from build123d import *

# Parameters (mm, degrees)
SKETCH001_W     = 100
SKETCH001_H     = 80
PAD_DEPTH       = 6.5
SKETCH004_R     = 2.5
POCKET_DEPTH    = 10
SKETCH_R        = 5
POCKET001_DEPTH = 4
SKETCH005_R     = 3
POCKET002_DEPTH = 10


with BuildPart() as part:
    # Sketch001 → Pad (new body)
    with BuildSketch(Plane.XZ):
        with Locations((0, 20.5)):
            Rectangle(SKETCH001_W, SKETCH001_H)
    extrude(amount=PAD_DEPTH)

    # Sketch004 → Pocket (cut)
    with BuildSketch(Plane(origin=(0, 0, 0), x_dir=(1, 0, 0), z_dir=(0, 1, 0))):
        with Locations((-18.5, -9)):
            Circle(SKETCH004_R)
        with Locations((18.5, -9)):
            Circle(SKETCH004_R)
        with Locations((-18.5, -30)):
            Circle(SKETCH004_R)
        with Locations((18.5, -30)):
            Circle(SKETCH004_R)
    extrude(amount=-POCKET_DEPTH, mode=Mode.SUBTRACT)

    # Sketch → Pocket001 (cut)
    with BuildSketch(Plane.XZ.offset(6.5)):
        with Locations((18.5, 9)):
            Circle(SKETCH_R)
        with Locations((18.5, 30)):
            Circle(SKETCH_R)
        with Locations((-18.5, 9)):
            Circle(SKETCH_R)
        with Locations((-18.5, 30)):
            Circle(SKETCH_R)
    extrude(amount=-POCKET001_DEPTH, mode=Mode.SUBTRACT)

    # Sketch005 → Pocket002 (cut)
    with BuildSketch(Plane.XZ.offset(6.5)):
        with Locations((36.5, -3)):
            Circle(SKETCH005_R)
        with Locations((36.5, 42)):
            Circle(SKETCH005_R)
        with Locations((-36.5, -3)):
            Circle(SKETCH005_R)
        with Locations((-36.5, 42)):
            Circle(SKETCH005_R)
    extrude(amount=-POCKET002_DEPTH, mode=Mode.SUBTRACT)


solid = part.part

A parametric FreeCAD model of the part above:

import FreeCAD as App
import Part
import Sketcher

V = App.Vector

doc = App.newDocument("Part")
body = doc.addObject("PartDesign::Body", "Body")

sketch1 = body.newObject("Sketcher::SketchObject", "Sketch")
sketch1.AttachmentSupport = (doc.getObject("XZ_Plane"), [""])
sketch1.MapMode = "FlatFace"
sketch1.addGeometry([
    Part.LineSegment(V(-50, 60, 0), V(-50, -20, 0)),
    Part.LineSegment(V(-50, -20, 0), V(50, -20, 0)),
    Part.LineSegment(V(50, -20, 0), V(50, 60, 0)),
    Part.LineSegment(V(50, 60, 0), V(-50, 60, 0)),
], False)
sketch1.addConstraint([
    Sketcher.Constraint("Coincident", 0, 2, 1, 1),
    Sketcher.Constraint("Coincident", 1, 2, 2, 1),
    Sketcher.Constraint("Coincident", 2, 2, 3, 1),
    Sketcher.Constraint("Coincident", 3, 2, 0, 1),
    Sketcher.Constraint("Vertical", 0),
    Sketcher.Constraint("Horizontal", 1),
    Sketcher.Constraint("Vertical", 2),
    Sketcher.Constraint("Horizontal", 3),
    Sketcher.Constraint("DistanceX", 1, 1, 1, 2, 100.0),
    Sketcher.Constraint("DistanceY", 0, 2, 0, 1, 80.0),
    Sketcher.Constraint("DistanceX", 0, 2, -1, 1, 50.0),
    Sketcher.Constraint("DistanceY", 0, 2, -1, 1, 19.5),
])
pad1 = body.newObject("PartDesign::Pad", "Pad")
pad1.Profile = sketch1
pad1.Length = 6.5

sketch2 = body.newObject("Sketcher::SketchObject", "Sketch001")
sketch2.AttachmentSupport = (doc.getObject("XZ_Plane"), [""])
sketch2.MapMode = "FlatFace"
sketch2.addGeometry([
    Part.Circle(V(-18.5, 9, 0), V(0, 0, 1), 2.5),
    Part.Circle(V(18.5, 9, 0), V(0, 0, 1), 2.5),
    Part.Circle(V(-18.5, 30, 0), V(0, 0, 1), 2.5),
    Part.Circle(V(18.5, 30, 0), V(0, 0, 1), 2.5),
], False)
sketch2.addConstraint([
    Sketcher.Constraint("Equal", 0, 1),
    Sketcher.Constraint("Equal", 1, 2),
    Sketcher.Constraint("Equal", 2, 3),
    Sketcher.Constraint("Symmetric", 0, 3, 1, 3, -2),
    Sketcher.Constraint("Symmetric", 2, 3, 3, 3, -2),
    Sketcher.Constraint("Vertical", 0, 3, 2, 3),
    Sketcher.Constraint("Diameter", 0, 5.0),
    Sketcher.Constraint("DistanceY", -1, 1, 0, 3, 9.0),
    Sketcher.Constraint("DistanceY", -1, 1, 2, 3, 30.0),
    Sketcher.Constraint("DistanceX", 0, 3, 1, 3, 37.0),
])
pocket1 = body.newObject("PartDesign::Pocket", "Pocket")
pocket1.Profile = sketch2
pocket1.Length = 10
pocket1.Reversed = True

sketch3 = body.newObject("Sketcher::SketchObject", "Sketch002")
sketch3.AttachmentSupport = (doc.getObject("XZ_Plane"), [""])
sketch3.MapMode = "FlatFace"
sketch3.AttachmentOffset = App.Placement(V(0, 0, 6.5), App.Rotation())
sketch3.addGeometry([
    Part.Circle(V(18, 9, 0), V(0, 0, 1), 5),
    Part.Circle(V(18, 30, 0), V(0, 0, 1), 5),
    Part.Circle(V(-18, 9, 0), V(0, 0, 1), 5),
    Part.Circle(V(-18, 30, 0), V(0, 0, 1), 5),
], False)
sketch3.addConstraint([
    Sketcher.Constraint("Equal", 0, 1),
    Sketcher.Constraint("Equal", 1, 2),
    Sketcher.Constraint("Equal", 2, 3),
    Sketcher.Constraint("Symmetric", 0, 3, 2, 3, -2),
    Sketcher.Constraint("Symmetric", 1, 3, 3, 3, -2),
    Sketcher.Constraint("Vertical", 0, 3, 1, 3),
    Sketcher.Constraint("Diameter", 0, 10.0),
    Sketcher.Constraint("DistanceY", -1, 1, 0, 3, 9.0),
    Sketcher.Constraint("DistanceY", -1, 1, 1, 3, 30.0),
    Sketcher.Constraint("DistanceX", 2, 3, 0, 3, 37.0),
])
pocket2 = body.newObject("PartDesign::Pocket", "Pocket001")
pocket2.Profile = sketch3
pocket2.Length = 4

sketch4 = body.newObject("Sketcher::SketchObject", "Sketch003")
sketch4.AttachmentSupport = (doc.getObject("XZ_Plane"), [""])
sketch4.MapMode = "FlatFace"
sketch4.AttachmentOffset = App.Placement(V(0, 0, 6.5), App.Rotation())
sketch4.addGeometry([
    Part.Circle(V(36.5, -3, 0), V(0, 0, 1), 3),
    Part.Circle(V(36.5, 42, 0), V(0, 0, 1), 3),
    Part.Circle(V(-36.5, -3, 0), V(0, 0, 1), 3),
    Part.Circle(V(-36.5, 42, 0), V(0, 0, 1), 3),
], False)
sketch4.addConstraint([
    Sketcher.Constraint("Equal", 0, 1),
    Sketcher.Constraint("Equal", 1, 2),
    Sketcher.Constraint("Equal", 2, 3),
    Sketcher.Constraint("Symmetric", 0, 3, 2, 3, -2),
    Sketcher.Constraint("Symmetric", 1, 3, 3, 3, -2),
    Sketcher.Constraint("Vertical", 0, 3, 1, 3),
    Sketcher.Constraint("Diameter", 0, 6.0),
    Sketcher.Constraint("DistanceY", 0, 3, -1, 1, 3.0),
    Sketcher.Constraint("DistanceY", -1, 1, 1, 3, 42.0),
    Sketcher.Constraint("DistanceX", 2, 3, 0, 3, 73.0),
])
pocket3 = body.newObject("PartDesign::Pocket", "Pocket002")
pocket3.Profile = sketch4
pocket3.Length = 10

doc.recompute()
